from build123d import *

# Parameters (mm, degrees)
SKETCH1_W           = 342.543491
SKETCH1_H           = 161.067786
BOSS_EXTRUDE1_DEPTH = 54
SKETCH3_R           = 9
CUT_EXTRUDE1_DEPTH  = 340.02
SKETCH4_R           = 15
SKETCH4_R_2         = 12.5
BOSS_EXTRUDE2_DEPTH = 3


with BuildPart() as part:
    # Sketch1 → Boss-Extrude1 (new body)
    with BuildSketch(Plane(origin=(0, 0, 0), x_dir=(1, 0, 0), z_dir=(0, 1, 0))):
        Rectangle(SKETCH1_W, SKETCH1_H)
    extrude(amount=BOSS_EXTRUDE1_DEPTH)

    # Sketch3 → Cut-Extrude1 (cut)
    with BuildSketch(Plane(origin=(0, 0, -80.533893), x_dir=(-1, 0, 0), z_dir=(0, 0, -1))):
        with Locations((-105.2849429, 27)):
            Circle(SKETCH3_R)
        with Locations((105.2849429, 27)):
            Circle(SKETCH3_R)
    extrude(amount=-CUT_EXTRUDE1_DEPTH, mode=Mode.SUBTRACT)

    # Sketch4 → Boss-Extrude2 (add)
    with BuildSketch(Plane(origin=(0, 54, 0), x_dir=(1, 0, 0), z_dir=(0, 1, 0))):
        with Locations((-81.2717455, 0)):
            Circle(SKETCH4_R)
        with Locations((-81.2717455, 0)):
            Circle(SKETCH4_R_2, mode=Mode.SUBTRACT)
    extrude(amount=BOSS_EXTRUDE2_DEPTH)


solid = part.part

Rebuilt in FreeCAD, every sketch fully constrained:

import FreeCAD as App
import Part
import Sketcher
from FreeCAD import Vector


def add_polygon(sketch, points):
    """Adds a closed chain of lines whose ends are joined by coincident constraints."""
    first, n = sketch.GeometryCount, len(points)
    for a, b in zip(points, points[1:] + points[:1]):
        sketch.addGeometry(Part.LineSegment(App.Vector(*a, 0), App.Vector(*b, 0)), False)
    for i in range(n):
        sketch.addConstraint(Sketcher.Constraint("Coincident", first + i, 2, first + (i + 1) % n, 1))

doc = App.newDocument("Part")
body = doc.addObject("PartDesign::Body", "Body")

# Sketch on XZ plane
sketch1 = body.newObject("Sketcher::SketchObject", "Sketch")
sketch1.AttachmentSupport = (doc.getObject("XZ_Plane"), [""])
sketch1.MapMode = "FlatFace"
add_polygon(sketch1, [(-171, -81), (-171, 81), (171, 81), (171, -81)])  # lines 0-3
sketch1.addConstraint([
    Sketcher.Constraint("Vertical", 0),
    Sketcher.Constraint("Horizontal", 1),
    Sketcher.Constraint("Vertical", 2),
    Sketcher.Constraint("Horizontal", 3),
    Sketcher.Constraint("Symmetric", 0, 2, 2, 2, -1, 1),
    Sketcher.Constraint("DistanceX", 1, 1, 1, 2, 342.543491),
    Sketcher.Constraint("DistanceY", 0, 1, 0, 2, 161.067786),
])
pad1 = body.newObject("PartDesign::Pad", "Pad")
pad1.Profile = sketch1
pad1.Length = 54
pad1.Reversed = True

# Sketch on XY plane
sketch2 = body.newObject("Sketcher::SketchObject", "Sketch001")
sketch2.AttachmentSupport = (doc.getObject("XY_Plane"), [""])
sketch2.MapMode = "FlatFace"
sketch2.AttachmentOffset = App.Placement(Vector(0, 0, -80.533893), App.Rotation())
sketch2.addGeometry([
    Part.Circle(Vector(105, 27, 0), Vector(0, 0, 1), 9),
    Part.Circle(Vector(-105, 27, 0), Vector(0, 0, 1), 9),
], False)
sketch2.addConstraint([
    Sketcher.Constraint("Equal", 0, 1),
    Sketcher.Constraint("Symmetric", 0, 3, 1, 3, -2),
    Sketcher.Constraint("Diameter", 0, 18.0),
    Sketcher.Constraint("DistanceY", -1, 1, 0, 3, 27.0),
    Sketcher.Constraint("DistanceX", -1, 1, 0, 3, 105.284943),
])
pocket1 = body.newObject("PartDesign::Pocket", "Pocket")
pocket1.Profile = sketch2
pocket1.Length = 340.02
pocket1.Reversed = True

# Sketch on XZ plane
sketch3 = body.newObject("Sketcher::SketchObject", "Sketch002")
sketch3.AttachmentSupport = (doc.getObject("XZ_Plane"), [""])
sketch3.MapMode = "FlatFace"
sketch3.AttachmentOffset = App.Placement(Vector(0, 0, -54), App.Rotation())
sketch3.addGeometry([
    Part.Circle(Vector(-81, 0, 0), Vector(0, 0, 1), 15),
    Part.Circle(Vector(-81, 0, 0), Vector(0, 0, 1), 12),
], False)
sketch3.addConstraint([
    Sketcher.Constraint("Coincident", 1, 3, 0, 3),
    Sketcher.Constraint("PointOnObject", 0, 3, -1),
    Sketcher.Constraint("Diameter", 0, 30.0),
    Sketcher.Constraint("Diameter", 1, 25.0),
    Sketcher.Constraint("DistanceX", 0, 3, -1, 1, 81.271745),
])
pad2 = body.newObject("PartDesign::Pad", "Pad001")
pad2.Profile = sketch3
pad2.Length = 3
pad2.Reversed = True

doc.recompute()
